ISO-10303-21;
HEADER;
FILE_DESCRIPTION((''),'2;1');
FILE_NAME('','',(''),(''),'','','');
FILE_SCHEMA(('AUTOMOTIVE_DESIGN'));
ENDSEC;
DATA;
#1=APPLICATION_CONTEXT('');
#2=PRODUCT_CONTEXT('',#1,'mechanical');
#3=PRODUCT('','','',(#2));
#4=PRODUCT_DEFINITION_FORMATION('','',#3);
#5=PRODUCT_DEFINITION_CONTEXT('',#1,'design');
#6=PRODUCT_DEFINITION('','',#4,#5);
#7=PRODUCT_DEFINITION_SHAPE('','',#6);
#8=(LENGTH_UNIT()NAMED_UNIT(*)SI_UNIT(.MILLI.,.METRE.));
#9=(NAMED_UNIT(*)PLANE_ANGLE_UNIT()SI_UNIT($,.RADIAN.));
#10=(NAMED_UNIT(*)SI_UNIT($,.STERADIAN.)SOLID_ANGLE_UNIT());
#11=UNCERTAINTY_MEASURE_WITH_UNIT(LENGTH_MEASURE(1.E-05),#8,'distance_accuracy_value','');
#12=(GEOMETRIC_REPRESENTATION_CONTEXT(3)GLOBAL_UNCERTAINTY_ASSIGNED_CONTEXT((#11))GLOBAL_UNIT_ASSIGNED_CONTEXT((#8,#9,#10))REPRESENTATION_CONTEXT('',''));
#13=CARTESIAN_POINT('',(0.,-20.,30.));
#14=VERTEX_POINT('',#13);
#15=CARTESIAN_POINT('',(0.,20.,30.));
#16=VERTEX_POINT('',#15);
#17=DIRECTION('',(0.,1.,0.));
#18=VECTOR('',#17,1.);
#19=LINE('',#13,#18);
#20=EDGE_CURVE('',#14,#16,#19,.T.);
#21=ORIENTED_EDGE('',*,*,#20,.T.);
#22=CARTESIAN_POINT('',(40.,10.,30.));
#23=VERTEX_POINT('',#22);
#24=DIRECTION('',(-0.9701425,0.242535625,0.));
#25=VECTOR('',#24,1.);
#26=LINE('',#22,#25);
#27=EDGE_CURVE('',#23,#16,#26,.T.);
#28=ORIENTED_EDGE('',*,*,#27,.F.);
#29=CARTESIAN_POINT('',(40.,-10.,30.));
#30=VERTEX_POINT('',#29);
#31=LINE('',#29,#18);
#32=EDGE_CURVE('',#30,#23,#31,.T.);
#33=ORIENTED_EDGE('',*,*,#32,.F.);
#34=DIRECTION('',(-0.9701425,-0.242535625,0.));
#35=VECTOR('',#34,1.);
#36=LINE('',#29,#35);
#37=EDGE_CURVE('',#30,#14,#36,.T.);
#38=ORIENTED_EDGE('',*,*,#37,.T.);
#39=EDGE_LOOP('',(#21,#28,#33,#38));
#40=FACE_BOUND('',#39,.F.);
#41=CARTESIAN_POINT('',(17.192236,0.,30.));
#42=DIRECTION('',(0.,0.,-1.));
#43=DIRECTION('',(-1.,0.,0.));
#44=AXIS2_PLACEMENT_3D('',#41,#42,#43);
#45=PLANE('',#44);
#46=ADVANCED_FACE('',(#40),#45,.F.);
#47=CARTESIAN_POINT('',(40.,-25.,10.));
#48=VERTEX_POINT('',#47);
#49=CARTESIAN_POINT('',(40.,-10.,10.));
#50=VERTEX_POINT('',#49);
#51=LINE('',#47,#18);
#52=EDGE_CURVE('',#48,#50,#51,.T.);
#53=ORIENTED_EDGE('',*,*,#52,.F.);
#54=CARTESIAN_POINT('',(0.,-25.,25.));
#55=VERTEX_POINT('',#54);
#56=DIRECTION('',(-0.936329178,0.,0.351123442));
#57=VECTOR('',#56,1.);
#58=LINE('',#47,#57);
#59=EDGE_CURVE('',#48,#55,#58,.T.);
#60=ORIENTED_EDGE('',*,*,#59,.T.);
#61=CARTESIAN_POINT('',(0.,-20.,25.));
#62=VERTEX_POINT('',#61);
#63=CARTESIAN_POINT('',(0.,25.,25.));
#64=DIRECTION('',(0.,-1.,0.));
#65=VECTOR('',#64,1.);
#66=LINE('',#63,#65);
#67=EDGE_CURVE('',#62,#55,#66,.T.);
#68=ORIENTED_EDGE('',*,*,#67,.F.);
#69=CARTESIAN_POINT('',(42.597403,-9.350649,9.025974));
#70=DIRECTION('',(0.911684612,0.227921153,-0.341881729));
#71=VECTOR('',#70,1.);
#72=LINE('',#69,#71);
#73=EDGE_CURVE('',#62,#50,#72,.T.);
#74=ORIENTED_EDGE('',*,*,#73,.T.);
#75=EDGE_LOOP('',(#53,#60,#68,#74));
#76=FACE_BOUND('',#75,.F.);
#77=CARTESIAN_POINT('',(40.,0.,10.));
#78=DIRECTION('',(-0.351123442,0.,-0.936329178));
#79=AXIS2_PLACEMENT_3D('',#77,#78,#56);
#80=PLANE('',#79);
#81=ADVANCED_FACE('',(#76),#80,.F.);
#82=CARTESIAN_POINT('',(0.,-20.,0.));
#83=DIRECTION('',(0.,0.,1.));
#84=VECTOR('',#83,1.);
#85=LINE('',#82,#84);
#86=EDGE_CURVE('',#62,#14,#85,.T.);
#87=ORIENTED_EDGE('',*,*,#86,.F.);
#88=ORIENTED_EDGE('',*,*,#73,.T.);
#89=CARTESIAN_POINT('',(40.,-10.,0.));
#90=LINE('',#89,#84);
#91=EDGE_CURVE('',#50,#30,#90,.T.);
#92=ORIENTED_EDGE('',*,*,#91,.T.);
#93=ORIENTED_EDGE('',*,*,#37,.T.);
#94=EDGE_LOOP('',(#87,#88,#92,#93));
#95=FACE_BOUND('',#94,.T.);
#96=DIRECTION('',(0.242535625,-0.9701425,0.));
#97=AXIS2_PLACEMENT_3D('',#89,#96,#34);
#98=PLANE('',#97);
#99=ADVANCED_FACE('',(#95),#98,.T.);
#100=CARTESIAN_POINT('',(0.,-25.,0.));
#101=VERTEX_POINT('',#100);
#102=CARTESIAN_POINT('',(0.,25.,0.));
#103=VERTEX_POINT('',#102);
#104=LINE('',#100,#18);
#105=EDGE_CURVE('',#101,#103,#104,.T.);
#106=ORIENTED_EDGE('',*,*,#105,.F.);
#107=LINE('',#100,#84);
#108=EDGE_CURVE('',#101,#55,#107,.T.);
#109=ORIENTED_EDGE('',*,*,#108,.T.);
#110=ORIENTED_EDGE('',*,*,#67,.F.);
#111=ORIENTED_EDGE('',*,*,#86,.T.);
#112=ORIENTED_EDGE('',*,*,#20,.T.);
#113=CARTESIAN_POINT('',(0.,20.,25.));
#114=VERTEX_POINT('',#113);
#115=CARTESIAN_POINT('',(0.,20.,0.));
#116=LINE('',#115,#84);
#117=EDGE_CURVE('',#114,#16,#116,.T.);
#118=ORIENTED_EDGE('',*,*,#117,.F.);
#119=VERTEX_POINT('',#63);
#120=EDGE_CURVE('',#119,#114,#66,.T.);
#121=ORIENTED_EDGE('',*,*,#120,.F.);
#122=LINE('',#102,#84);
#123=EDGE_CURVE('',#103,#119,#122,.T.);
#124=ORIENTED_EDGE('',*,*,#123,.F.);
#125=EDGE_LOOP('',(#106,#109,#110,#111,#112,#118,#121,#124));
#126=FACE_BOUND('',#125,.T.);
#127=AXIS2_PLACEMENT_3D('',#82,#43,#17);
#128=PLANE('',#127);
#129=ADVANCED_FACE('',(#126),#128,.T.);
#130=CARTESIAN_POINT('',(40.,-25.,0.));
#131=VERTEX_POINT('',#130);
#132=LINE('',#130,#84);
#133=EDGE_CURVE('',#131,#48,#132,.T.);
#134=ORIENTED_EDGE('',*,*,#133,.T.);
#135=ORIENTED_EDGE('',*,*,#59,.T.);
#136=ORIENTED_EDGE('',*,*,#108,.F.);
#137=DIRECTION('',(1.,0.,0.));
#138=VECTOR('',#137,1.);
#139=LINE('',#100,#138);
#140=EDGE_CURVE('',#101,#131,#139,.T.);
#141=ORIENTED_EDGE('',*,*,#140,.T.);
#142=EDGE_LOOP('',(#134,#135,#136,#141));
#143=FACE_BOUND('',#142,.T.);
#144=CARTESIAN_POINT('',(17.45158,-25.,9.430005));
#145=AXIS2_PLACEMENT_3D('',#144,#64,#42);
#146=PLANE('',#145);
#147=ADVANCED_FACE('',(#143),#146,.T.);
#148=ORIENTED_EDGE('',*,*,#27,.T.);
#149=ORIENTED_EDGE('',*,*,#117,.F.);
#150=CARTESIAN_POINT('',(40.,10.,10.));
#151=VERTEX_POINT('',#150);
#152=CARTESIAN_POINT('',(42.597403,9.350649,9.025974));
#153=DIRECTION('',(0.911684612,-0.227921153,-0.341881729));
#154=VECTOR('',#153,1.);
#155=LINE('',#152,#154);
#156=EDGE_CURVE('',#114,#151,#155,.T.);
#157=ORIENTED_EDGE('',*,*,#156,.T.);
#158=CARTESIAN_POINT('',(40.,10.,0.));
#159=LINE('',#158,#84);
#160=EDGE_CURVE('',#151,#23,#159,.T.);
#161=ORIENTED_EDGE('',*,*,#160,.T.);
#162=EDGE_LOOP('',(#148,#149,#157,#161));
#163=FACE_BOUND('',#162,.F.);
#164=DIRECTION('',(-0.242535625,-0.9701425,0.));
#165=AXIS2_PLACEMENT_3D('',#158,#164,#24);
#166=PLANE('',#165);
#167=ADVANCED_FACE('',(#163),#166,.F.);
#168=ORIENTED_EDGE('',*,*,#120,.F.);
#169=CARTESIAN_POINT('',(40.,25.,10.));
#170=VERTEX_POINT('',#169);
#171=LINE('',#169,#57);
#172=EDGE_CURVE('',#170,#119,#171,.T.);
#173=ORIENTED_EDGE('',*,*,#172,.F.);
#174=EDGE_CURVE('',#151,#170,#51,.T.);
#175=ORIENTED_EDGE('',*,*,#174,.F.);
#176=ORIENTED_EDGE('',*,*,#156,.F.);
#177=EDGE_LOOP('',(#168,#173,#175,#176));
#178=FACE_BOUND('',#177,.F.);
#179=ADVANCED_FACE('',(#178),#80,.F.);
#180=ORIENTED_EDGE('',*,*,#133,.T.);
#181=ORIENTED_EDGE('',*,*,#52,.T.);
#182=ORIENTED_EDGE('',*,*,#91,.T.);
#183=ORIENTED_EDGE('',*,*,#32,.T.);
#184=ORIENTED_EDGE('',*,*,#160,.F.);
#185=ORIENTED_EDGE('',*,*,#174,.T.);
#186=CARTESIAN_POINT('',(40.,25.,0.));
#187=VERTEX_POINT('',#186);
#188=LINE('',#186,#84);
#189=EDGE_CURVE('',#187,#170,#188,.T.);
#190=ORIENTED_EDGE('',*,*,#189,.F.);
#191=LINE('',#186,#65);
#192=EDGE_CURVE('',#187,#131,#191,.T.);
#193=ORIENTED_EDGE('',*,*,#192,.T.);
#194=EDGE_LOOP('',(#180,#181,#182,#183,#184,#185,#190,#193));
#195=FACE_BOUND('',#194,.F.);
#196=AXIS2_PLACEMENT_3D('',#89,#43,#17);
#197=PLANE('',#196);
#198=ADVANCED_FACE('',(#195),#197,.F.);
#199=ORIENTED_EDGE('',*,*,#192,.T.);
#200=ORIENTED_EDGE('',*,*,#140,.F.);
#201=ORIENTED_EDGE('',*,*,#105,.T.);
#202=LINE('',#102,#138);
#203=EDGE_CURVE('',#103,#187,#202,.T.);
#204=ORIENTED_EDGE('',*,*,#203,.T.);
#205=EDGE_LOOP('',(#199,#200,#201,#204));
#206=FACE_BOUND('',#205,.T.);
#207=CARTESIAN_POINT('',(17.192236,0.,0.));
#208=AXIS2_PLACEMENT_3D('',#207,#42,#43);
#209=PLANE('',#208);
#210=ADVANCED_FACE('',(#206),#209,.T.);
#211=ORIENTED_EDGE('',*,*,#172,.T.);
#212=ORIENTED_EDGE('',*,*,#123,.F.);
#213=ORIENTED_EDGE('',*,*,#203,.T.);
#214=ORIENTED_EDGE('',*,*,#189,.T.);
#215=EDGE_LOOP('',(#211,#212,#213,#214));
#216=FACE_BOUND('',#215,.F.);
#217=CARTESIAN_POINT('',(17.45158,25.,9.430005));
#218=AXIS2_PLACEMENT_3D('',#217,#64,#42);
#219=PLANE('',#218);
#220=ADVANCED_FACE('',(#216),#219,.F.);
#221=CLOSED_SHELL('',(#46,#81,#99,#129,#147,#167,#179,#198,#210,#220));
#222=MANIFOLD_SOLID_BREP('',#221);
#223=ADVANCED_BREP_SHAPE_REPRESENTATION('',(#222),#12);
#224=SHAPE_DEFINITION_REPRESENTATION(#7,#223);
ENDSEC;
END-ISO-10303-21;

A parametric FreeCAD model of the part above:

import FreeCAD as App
import Part
import Sketcher


def add_polygon(sketch, points):
    """Adds a closed chain of lines whose ends are joined by coincident constraints."""
    first, n = sketch.GeometryCount, len(points)
    for a, b in zip(points, points[1:] + points[:1]):
        sketch.addGeometry(Part.LineSegment(App.Vector(*a, 0), App.Vector(*b, 0)), False)
    for i in range(n):
        sketch.addConstraint(Sketcher.Constraint("Coincident", first + i, 2, first + (i + 1) % n, 1))

doc = App.newDocument("Part")
body = doc.addObject("PartDesign::Body", "Body")

# Sketch on XY plane
sketch1 = doc.addObject("Sketcher::SketchObject", "Sketch")
body.addObject(sketch1)
sketch1.AttachmentSupport = (doc.XY_Plane, [""])
sketch1.MapMode = "FlatFace"
add_polygon(sketch1, [(0, -20), (40, -10), (40, 10), (0, 20)])  # lines 0-3
sketch1.addConstraint(Sketcher.Constraint("Vertical", 1))
sketch1.addConstraint(Sketcher.Constraint("Vertical", 3))
sketch1.addConstraint(Sketcher.Constraint("Symmetric", 2, 2, 3, 2, -1, 1))
sketch1.addConstraint(Sketcher.Constraint("Equal", 0, 2))
sketch1.addConstraint(Sketcher.Constraint("DistanceY", 1, 1, 1, 2, 20.0))
sketch1.addConstraint(Sketcher.Constraint("DistanceY", 3, 2, 3, 1, 40.0))
sketch1.addConstraint(Sketcher.Constraint("DistanceX", -1, 1, 0, 2, 40.0))
pad1 = doc.addObject("PartDesign::Pad", "Pad")
body.addObject(pad1)
pad1.Profile = sketch1
pad1.Length = 30

# Sketch on XZ plane
sketch2 = doc.addObject("Sketcher::SketchObject", "Sketch001")
body.addObject(sketch2)
sketch2.AttachmentSupport = (doc.XZ_Plane, [""])
sketch2.MapMode = "FlatFace"
add_polygon(sketch2, [(40, 0), (40, 10), (0, 25), (0, 0)])  # lines 0-3
sketch2.addConstraint(Sketcher.Constraint("Vertical", 0))
sketch2.addConstraint(Sketcher.Constraint("Vertical", 2))
sketch2.addConstraint(Sketcher.Constraint("Horizontal", 3))
sketch2.addConstraint(Sketcher.Constraint("Coincident", 2, 2, -1, 1))
sketch2.addConstraint(Sketcher.Constraint("DistanceX", 3, 1, 3, 2, 40.0))
sketch2.addConstraint(Sketcher.Constraint("DistanceY", 0, 1, 0, 2, 10.0))
sketch2.addConstraint(Sketcher.Constraint("DistanceY", 2, 2, 2, 1, 25.0))
pad2 = doc.addObject("PartDesign::Pad", "Pad001")
body.addObject(pad2)
pad2.Profile = sketch2
pad2.Length = 50
pad2.Midplane = True

doc.recompute()
